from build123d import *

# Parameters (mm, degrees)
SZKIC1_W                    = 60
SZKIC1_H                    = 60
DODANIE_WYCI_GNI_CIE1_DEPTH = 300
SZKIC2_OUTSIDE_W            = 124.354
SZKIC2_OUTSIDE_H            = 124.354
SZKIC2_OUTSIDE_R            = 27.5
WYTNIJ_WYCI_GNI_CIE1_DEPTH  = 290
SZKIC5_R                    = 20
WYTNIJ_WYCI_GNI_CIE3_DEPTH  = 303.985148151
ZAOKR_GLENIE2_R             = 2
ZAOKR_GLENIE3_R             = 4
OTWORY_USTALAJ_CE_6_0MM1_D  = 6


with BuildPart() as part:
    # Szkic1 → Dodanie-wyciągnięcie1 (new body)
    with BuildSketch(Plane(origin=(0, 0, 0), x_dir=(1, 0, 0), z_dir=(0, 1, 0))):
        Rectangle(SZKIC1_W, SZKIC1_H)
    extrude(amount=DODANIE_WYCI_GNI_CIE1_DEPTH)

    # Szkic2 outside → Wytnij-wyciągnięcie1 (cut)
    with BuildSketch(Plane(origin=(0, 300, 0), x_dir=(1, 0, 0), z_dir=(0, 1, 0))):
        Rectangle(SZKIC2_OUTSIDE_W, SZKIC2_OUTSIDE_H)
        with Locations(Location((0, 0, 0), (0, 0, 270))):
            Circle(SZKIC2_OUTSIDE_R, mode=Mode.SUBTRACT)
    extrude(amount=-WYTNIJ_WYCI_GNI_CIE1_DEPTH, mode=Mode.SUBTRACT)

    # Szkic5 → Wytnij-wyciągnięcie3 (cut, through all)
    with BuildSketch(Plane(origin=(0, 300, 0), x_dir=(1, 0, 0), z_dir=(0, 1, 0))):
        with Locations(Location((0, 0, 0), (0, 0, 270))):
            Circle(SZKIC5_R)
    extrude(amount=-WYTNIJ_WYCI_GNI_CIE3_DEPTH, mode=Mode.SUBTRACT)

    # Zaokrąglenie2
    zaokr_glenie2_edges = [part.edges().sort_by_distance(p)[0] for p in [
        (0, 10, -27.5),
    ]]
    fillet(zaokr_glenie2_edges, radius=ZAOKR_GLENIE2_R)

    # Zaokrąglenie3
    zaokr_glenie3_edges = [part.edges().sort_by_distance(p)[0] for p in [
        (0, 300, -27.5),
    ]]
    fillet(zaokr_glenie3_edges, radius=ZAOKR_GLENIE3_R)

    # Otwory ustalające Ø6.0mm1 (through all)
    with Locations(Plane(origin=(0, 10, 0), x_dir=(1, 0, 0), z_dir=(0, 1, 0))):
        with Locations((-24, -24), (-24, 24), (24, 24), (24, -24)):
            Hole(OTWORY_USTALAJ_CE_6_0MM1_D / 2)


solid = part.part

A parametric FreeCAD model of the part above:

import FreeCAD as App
import Part
import Sketcher

V = App.Vector
Q = App.Units.Quantity


def edges_at(feature, points):
    """Names of the edges that pass closest to the given points."""
    edges = feature.Shape.Edges
    near = lambda p: min(range(len(edges)), key=lambda i: edges[i].distToShape(Part.Vertex(*p))[0])
    return sorted({f"Edge{near(p) + 1}" for p in points})


def add_polygon(sketch, points):
    """Adds a closed chain of lines whose ends are joined by coincident constraints."""
    first, n = sketch.GeometryCount, len(points)
    for a, b in zip(points, points[1:] + points[:1]):
        sketch.addGeometry(Part.LineSegment(App.Vector(*a, 0), App.Vector(*b, 0)), False)
    for i in range(n):
        sketch.addConstraint(Sketcher.Constraint("Coincident", first + i, 2, first + (i + 1) % n, 1))

doc = App.newDocument("Part")
body = doc.addObject("PartDesign::Body", "Body")

# Sketch on XZ plane
sketch1 = body.newObject("Sketcher::SketchObject", "Sketch")
sketch1.AttachmentSupport = (doc.getObject("XZ_Plane"), [""])
sketch1.MapMode = "FlatFace"
add_polygon(sketch1, [(-30, -30), (-30, 30), (30, 30), (30, -30)])  # lines 0-3
sketch1.addConstraint(Sketcher.Constraint("Vertical", 0))
sketch1.addConstraint(Sketcher.Constraint("Horizontal", 1))
sketch1.addConstraint(Sketcher.Constraint("Vertical", 2))
sketch1.addConstraint(Sketcher.Constraint("Horizontal", 3))
sketch1.addConstraint(Sketcher.Constraint("Symmetric", 0, 2, 2, 2, -1, 1))
sketch1.addConstraint(Sketcher.Constraint("Equal", 3, 0))
sketch1.addConstraint(Sketcher.Constraint("DistanceX", 1, 1, 1, 2, Q("60 mm")))
pad1 = body.newObject("PartDesign::Pad", "Pad")
pad1.Profile = sketch1
pad1.Length = 300
pad1.Reversed = True

# Sketch on XZ plane
sketch2 = body.newObject("Sketcher::SketchObject", "Sketch001")
sketch2.AttachmentSupport = (doc.getObject("XZ_Plane"), [""])
sketch2.MapMode = "FlatFace"
sketch2.AttachmentOffset = App.Placement(V(0, 0, -300), App.Rotation())
add_polygon(sketch2, [(-62.177, -62.177), (-62.177, 62.177), (62.177, 62.177), (62.177, -62.177)])  # lines 0-3
sketch2.addGeometry(Part.Circle(V(0, 0, 0), V(0, 0, 1), 27.5), False)  # 4
sketch2.addConstraint(Sketcher.Constraint("Vertical", 0))
sketch2.addConstraint(Sketcher.Constraint("Horizontal", 1))
sketch2.addConstraint(Sketcher.Constraint("Vertical", 2))
sketch2.addConstraint(Sketcher.Constraint("Horizontal", 3))
sketch2.addConstraint(Sketcher.Constraint("Coincident", 4, 3, -1, 1))
sketch2.addConstraint(Sketcher.Constraint("Symmetric", 0, 2, 2, 2, -1, 1))
sketch2.addConstraint(Sketcher.Constraint("Equal", 3, 0))
sketch2.addConstraint(Sketcher.Constraint("Diameter", 4, Q("55 mm")))
sketch2.addConstraint(Sketcher.Constraint("DistanceX", 1, 1, 1, 2, Q("124.354 mm")))
pocket1 = body.newObject("PartDesign::Pocket", "Pocket")
pocket1.Profile = sketch2
pocket1.Length = 290
pocket1.Reversed = True

# Sketch on XZ plane
sketch3 = body.newObject("Sketcher::SketchObject", "Sketch002")
sketch3.AttachmentSupport = (doc.getObject("XZ_Plane"), [""])
sketch3.MapMode = "FlatFace"
sketch3.AttachmentOffset = App.Placement(V(0, 0, -300), App.Rotation())
sketch3.addGeometry(Part.Circle(V(0, 0, 0), V(0, 0, 1), 20), False)
sketch3.addConstraint(Sketcher.Constraint("Coincident", 0, 3, -1, 1))
sketch3.addConstraint(Sketcher.Constraint("Diameter", 0, Q("40 mm")))
pocket2 = body.newObject("PartDesign::Pocket", "Pocket001")
pocket2.Profile = sketch3
pocket2.Type = "ThroughAll"
pocket2.Reversed = True
doc.recompute()

fillet = body.newObject("PartDesign::Fillet", "Fillet")
fillet.Base = (pocket2, edges_at(pocket2, [(0, 10, -27.5)]))
fillet.Radius = 2
doc.recompute()

fillet2 = body.newObject("PartDesign::Fillet", "Fillet001")
fillet2.Base = (fillet, edges_at(fillet, [(0, 300, -27.5)]))
fillet2.Radius = 4

# Sketch on XZ plane
sketch4 = body.newObject("Sketcher::SketchObject", "Sketch003")
sketch4.AttachmentSupport = (doc.getObject("XZ_Plane"), [""])
sketch4.MapMode = "FlatFace"
sketch4.AttachmentOffset = App.Placement(V(0, 0, -10), App.Rotation())
sketch4.addGeometry(Part.Circle(V(-24, 24, 0), V(0, 0, 1), 3), False)
sketch4.addGeometry(Part.Circle(V(-24, -24, 0), V(0, 0, 1), 3), False)
sketch4.addGeometry(Part.Circle(V(24, -24, 0), V(0, 0, 1), 3), False)
sketch4.addGeometry(Part.Circle(V(24, 24, 0), V(0, 0, 1), 3), False)
sketch4.addConstraint(Sketcher.Constraint("Equal", 0, 1))
sketch4.addConstraint(Sketcher.Constraint("Equal", 1, 2))
sketch4.addConstraint(Sketcher.Constraint("Equal", 2, 3))
sketch4.addConstraint(Sketcher.Constraint("Symmetric", 0, 3, 2, 3, -1, 1))
sketch4.addConstraint(Sketcher.Constraint("Symmetric", 1, 3, 3, 3, -1, 1))
sketch4.addConstraint(Sketcher.Constraint("Symmetric", 1, 3, 2, 3, -2))
sketch4.addConstraint(Sketcher.Constraint("Diameter", 0, Q("6 mm")))
sketch4.addConstraint(Sketcher.Constraint("DistanceX", 0, 3, -1, 1, Q("24 mm")))
sketch4.addConstraint(Sketcher.Constraint("DistanceY", -1, 1, 0, 3, Q("24 mm")))
doc.recompute()
hole = body.newObject("PartDesign::Hole", "Hole")
hole.Profile = sketch4
hole.ThreadType = "None"
hole.Diameter = 6
hole.DepthType = "ThroughAll"
hole.Reversed = True

doc.recompute()
